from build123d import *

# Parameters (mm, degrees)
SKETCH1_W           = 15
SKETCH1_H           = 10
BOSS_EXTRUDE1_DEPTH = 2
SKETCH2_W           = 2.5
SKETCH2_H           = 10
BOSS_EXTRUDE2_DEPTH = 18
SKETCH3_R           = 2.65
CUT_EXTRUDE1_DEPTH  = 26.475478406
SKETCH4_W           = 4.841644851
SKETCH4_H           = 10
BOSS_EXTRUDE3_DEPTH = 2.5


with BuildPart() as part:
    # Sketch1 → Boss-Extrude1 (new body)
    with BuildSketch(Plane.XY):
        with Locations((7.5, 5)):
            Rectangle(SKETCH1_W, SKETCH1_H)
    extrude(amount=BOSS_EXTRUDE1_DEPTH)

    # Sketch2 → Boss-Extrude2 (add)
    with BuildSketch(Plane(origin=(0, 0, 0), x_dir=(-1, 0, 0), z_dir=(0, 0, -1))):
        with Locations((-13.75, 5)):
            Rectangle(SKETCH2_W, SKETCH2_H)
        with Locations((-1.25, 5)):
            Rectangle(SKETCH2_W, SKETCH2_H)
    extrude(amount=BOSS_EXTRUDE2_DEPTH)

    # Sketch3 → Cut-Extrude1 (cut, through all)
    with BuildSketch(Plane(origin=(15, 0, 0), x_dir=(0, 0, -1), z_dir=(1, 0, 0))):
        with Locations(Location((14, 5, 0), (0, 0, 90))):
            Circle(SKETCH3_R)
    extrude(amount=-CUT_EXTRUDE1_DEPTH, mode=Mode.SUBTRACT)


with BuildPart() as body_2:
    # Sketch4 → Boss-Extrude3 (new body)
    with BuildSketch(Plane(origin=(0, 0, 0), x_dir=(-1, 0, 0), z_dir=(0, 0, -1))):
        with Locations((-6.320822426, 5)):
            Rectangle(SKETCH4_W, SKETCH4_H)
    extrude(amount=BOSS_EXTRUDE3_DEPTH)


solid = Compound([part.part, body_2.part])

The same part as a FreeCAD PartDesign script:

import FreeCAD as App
import Part
import Sketcher

doc = App.newDocument("Part")
body = doc.addObject("PartDesign::Body", "Body")

# Sketch on XY plane
sketch1 = doc.addObject("Sketcher::SketchObject", "Sketch")
body.addObject(sketch1)
sketch1.AttachmentSupport = (doc.XY_Plane, [""])
sketch1.MapMode = "FlatFace"
sketch1.addGeometry([
    Part.LineSegment(App.Vector(0, 10, 0), App.Vector(0, 0, 0)),
    Part.LineSegment(App.Vector(0, 0, 0), App.Vector(15, 0, 0)),
    Part.LineSegment(App.Vector(15, 0, 0), App.Vector(15, 10, 0)),
    Part.LineSegment(App.Vector(15, 10, 0), App.Vector(0, 10, 0)),
], False)
sketch1.addConstraint([
    Sketcher.Constraint("Coincident", 0, 2, 1, 1),
    Sketcher.Constraint("Coincident", 1, 2, 2, 1),
    Sketcher.Constraint("Coincident", 2, 2, 3, 1),
    Sketcher.Constraint("Coincident", 3, 2, 0, 1),
    Sketcher.Constraint("Vertical", 0),
    Sketcher.Constraint("Horizontal", 1),
    Sketcher.Constraint("Vertical", 2),
    Sketcher.Constraint("Horizontal", 3),
    Sketcher.Constraint("Coincident", 0, 2, -1, 1),
    Sketcher.Constraint("DistanceX", 1, 1, 1, 2, 15.0),
    Sketcher.Constraint("DistanceY", 0, 2, 0, 1, 10.0),
])
pad1 = doc.addObject("PartDesign::Pad", "Pad")
body.addObject(pad1)
pad1.Profile = sketch1
pad1.Length = 2

# Sketch on XY plane
sketch2 = doc.addObject("Sketcher::SketchObject", "Sketch001")
body.addObject(sketch2)
sketch2.AttachmentSupport = (doc.XY_Plane, [""])
sketch2.MapMode = "FlatFace"
sketch2.addGeometry([
    Part.LineSegment(App.Vector(15, 10, 0), App.Vector(15, 0, 0)),  # 0
    Part.LineSegment(App.Vector(15, 0, 0), App.Vector(12.5, 0, 0)),  # 1
    Part.LineSegment(App.Vector(12.5, 0, 0), App.Vector(12.5, 10, 0)),  # 2
    Part.LineSegment(App.Vector(12.5, 10, 0), App.Vector(15, 10, 0)),  # 3
    Part.LineSegment(App.Vector(2.5, 10, 0), App.Vector(2.5, 0, 0)),  # 4
    Part.LineSegment(App.Vector(2.5, 0, 0), App.Vector(0, 0, 0)),  # 5
    Part.LineSegment(App.Vector(0, 0, 0), App.Vector(0, 10, 0)),  # 6
    Part.LineSegment(App.Vector(0, 10, 0), App.Vector(2.5, 10, 0)),  # 7
], False)
sketch2.addConstraint([
    Sketcher.Constraint("Coincident", 0, 2, 1, 1),
    Sketcher.Constraint("Coincident", 1, 2, 2, 1),
    Sketcher.Constraint("Coincident", 2, 2, 3, 1),
    Sketcher.Constraint("Coincident", 3, 2, 0, 1),
    Sketcher.Constraint("Coincident", 4, 2, 5, 1),
    Sketcher.Constraint("Coincident", 5, 2, 6, 1),
    Sketcher.Constraint("Coincident", 6, 2, 7, 1),
    Sketcher.Constraint("Coincident", 7, 2, 4, 1),
    Sketcher.Constraint("Vertical", 0),
    Sketcher.Constraint("Horizontal", 1),
    Sketcher.Constraint("Vertical", 2),
    Sketcher.Constraint("Horizontal", 3),
    Sketcher.Constraint("Vertical", 4),
    Sketcher.Constraint("Horizontal", 5),
    Sketcher.Constraint("Vertical", 6),
    Sketcher.Constraint("Horizontal", 7),
    Sketcher.Constraint("Coincident", 5, 2, -1, 1),
    Sketcher.Constraint("PointOnObject", 0, 2, -1),
    Sketcher.Constraint("Horizontal", 3, 2, 6, 2),
    Sketcher.Constraint("Equal", 3, 5),
    Sketcher.Constraint("DistanceY", 0, 2, 0, 1, 10.0),
    Sketcher.Constraint("DistanceX", 1, 2, 1, 1, 2.5),
    Sketcher.Constraint("DistanceX", -1, 1, 0, 2, 15.0),
])
pad2 = doc.addObject("PartDesign::Pad", "Pad001")
body.addObject(pad2)
pad2.Profile = sketch2
pad2.Length = 18
pad2.Reversed = True

# Sketch on YZ plane
sketch3 = doc.addObject("Sketcher::SketchObject", "Sketch002")
body.addObject(sketch3)
sketch3.AttachmentSupport = (doc.YZ_Plane, [""])
sketch3.MapMode = "FlatFace"
sketch3.AttachmentOffset = App.Placement(App.Vector(0, 0, 15), App.Rotation())
sketch3.addGeometry(Part.Circle(App.Vector(5, -14, 0), App.Vector(0, 0, 1), 2.65), False)
sketch3.addConstraint([
    Sketcher.Constraint("Diameter", 0, 5.3),
    Sketcher.Constraint("DistanceX", -1, 1, 0, 3, 5.0),
    Sketcher.Constraint("DistanceY", 0, 3, -1, 1, 14.0),
])
pocket1 = doc.addObject("PartDesign::Pocket", "Pocket")
body.addObject(pocket1)
pocket1.Profile = sketch3
pocket1.Type = "ThroughAll"
body2 = doc.addObject("PartDesign::Body", "Body001")

# Sketch on XY plane
sketch4 = doc.addObject("Sketcher::SketchObject", "Sketch003")
body2.addObject(sketch4)
sketch4.AttachmentSupport = (doc.getObject("XY_Plane001"), [""])
sketch4.MapMode = "FlatFace"
sketch4.addGeometry([
    Part.LineSegment(App.Vector(8.741645, 10, 0), App.Vector(8.741645, 0, 0)),
    Part.LineSegment(App.Vector(8.741645, 0, 0), App.Vector(3.9, 0, 0)),
    Part.LineSegment(App.Vector(3.9, 0, 0), App.Vector(3.9, 10, 0)),
    Part.LineSegment(App.Vector(3.9, 10, 0), App.Vector(8.741645, 10, 0)),
], False)
sketch4.addConstraint([
    Sketcher.Constraint("Coincident", 0, 2, 1, 1),
    Sketcher.Constraint("Coincident", 1, 2, 2, 1),
    Sketcher.Constraint("Coincident", 2, 2, 3, 1),
    Sketcher.Constraint("Coincident", 3, 2, 0, 1),
    Sketcher.Constraint("Vertical", 0),
    Sketcher.Constraint("Horizontal", 1),
    Sketcher.Constraint("Vertical", 2),
    Sketcher.Constraint("Horizontal", 3),
    Sketcher.Constraint("PointOnObject", 0, 2, -1),
    Sketcher.Constraint("DistanceY", 0, 2, 0, 1, 10.0),
    Sketcher.Constraint("DistanceX", -1, 1, 1, 2, 3.9),
    Sketcher.Constraint("DistanceX", 1, 2, 1, 1, 4.841645),
])
pad3 = doc.addObject("PartDesign::Pad", "Pad002")
body2.addObject(pad3)
pad3.Profile = sketch4
pad3.Length = 2.5
pad3.Reversed = True

doc.recompute()
